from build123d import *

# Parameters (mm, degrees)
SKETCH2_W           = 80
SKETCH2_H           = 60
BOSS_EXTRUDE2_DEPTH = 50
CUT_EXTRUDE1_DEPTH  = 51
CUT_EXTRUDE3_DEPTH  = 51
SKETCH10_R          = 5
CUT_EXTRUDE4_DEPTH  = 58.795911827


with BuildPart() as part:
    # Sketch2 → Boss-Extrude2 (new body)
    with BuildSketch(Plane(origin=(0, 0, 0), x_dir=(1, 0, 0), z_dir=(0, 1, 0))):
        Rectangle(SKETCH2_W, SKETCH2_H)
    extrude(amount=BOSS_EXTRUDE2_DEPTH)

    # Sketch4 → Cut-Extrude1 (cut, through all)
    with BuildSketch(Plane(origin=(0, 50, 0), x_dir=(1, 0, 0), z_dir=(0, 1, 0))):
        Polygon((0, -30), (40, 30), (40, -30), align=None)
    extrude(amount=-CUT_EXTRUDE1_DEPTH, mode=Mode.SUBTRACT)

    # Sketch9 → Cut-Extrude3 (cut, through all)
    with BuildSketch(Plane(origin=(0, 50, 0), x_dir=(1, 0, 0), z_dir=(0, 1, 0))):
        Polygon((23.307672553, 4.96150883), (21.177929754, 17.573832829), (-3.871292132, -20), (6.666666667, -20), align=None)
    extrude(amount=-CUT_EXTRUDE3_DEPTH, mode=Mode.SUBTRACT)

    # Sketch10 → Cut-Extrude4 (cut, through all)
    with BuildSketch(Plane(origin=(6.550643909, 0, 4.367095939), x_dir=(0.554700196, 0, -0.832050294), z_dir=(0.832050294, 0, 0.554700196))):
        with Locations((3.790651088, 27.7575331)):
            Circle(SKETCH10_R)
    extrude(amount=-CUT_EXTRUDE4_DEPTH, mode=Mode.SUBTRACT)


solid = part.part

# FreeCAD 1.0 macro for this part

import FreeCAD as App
import Part
import Sketcher
Q = App.Units.Quantity

doc = App.newDocument("Part")
body = doc.addObject("PartDesign::Body", "Body")

# Sketch on XZ plane
sketch1 = doc.addObject("Sketcher::SketchObject", "Sketch")
body.addObject(sketch1)
sketch1.AttachmentSupport = (doc.XZ_Plane, [""])
sketch1.MapMode = "FlatFace"
sketch1.addGeometry([
    Part.LineSegment(App.Vector(-40, -30, 0), App.Vector(-40, 30, 0)),
    Part.LineSegment(App.Vector(-40, 30, 0), App.Vector(40, 30, 0)),
    Part.LineSegment(App.Vector(40, 30, 0), App.Vector(40, -30, 0)),
    Part.LineSegment(App.Vector(40, -30, 0), App.Vector(-40, -30, 0)),
], False)
sketch1.addConstraint([
    Sketcher.Constraint("Coincident", 0, 2, 1, 1),
    Sketcher.Constraint("Coincident", 1, 2, 2, 1),
    Sketcher.Constraint("Coincident", 2, 2, 3, 1),
    Sketcher.Constraint("Coincident", 3, 2, 0, 1),
    Sketcher.Constraint("Vertical", 0),
    Sketcher.Constraint("Horizontal", 1),
    Sketcher.Constraint("Vertical", 2),
    Sketcher.Constraint("Horizontal", 3),
    Sketcher.Constraint("Symmetric", 0, 2, 2, 2, -1, 1),
    Sketcher.Constraint("DistanceX", 1, 1, 1, 2, Q("80 mm")),
    Sketcher.Constraint("DistanceY", 0, 1, 0, 2, Q("60 mm")),
])
pad1 = doc.addObject("PartDesign::Pad", "Pad")
body.addObject(pad1)
pad1.Profile = sketch1
pad1.Length = 50
pad1.Reversed = True

# Sketch on XZ plane
sketch2 = doc.addObject("Sketcher::SketchObject", "Sketch001")
body.addObject(sketch2)
sketch2.AttachmentSupport = (doc.XZ_Plane, [""])
sketch2.MapMode = "FlatFace"
sketch2.AttachmentOffset = App.Placement(App.Vector(0, 0, -50), App.Rotation())
sketch2.addGeometry([
    Part.LineSegment(App.Vector(40, -30, 0), App.Vector(0, 30, 0)),
    Part.LineSegment(App.Vector(0, 30, 0), App.Vector(40, 30, 0)),
    Part.LineSegment(App.Vector(40, 30, 0), App.Vector(40, -30, 0)),
], False)
sketch2.addConstraint([
    Sketcher.Constraint("Coincident", 0, 2, 1, 1),
    Sketcher.Constraint("Coincident", 1, 2, 2, 1),
    Sketcher.Constraint("Coincident", 2, 2, 0, 1),
    Sketcher.Constraint("Horizontal", 1),
    Sketcher.Constraint("Vertical", 2),
    Sketcher.Constraint("PointOnObject", 0, 2, -2),
    Sketcher.Constraint("DistanceX", 1, 1, 1, 2, Q("40 mm")),
    Sketcher.Constraint("DistanceY", 2, 2, 2, 1, Q("60 mm")),
    Sketcher.Constraint("DistanceY", -1, 1, 0, 2, Q("30 mm")),
])
pocket1 = doc.addObject("PartDesign::Pocket", "Pocket")
body.addObject(pocket1)
pocket1.Profile = sketch2
pocket1.Type = "ThroughAll"
pocket1.Reversed = True

# Sketch on XZ plane
sketch3 = doc.addObject("Sketcher::SketchObject", "Sketch002")
body.addObject(sketch3)
sketch3.AttachmentSupport = (doc.XZ_Plane, [""])
sketch3.MapMode = "FlatFace"
sketch3.AttachmentOffset = App.Placement(App.Vector(0, 0, -50), App.Rotation())
sketch3.addGeometry([
    Part.LineSegment(App.Vector(23, -5, 0), App.Vector(21, -18, 0)),
    Part.LineSegment(App.Vector(21, -18, 0), App.Vector(-4, 20, 0)),
    Part.LineSegment(App.Vector(-4, 20, 0), App.Vector(7, 20, 0)),
    Part.LineSegment(App.Vector(7, 20, 0), App.Vector(23, -5, 0)),
], False)
sketch3.addConstraint([
    Sketcher.Constraint("Coincident", 0, 2, 1, 1),
    Sketcher.Constraint("Coincident", 1, 2, 2, 1),
    Sketcher.Constraint("Coincident", 2, 2, 3, 1),
    Sketcher.Constraint("Coincident", 3, 2, 0, 1),
    Sketcher.Constraint("Horizontal", 2),
    Sketcher.Constraint("Parallel", 1, 3),
    Sketcher.Constraint("Distance", 3, Q("30 mm")),
    Sketcher.Constraint("DistanceY", -1, 1, 1, 2, Q("20 mm")),
    Sketcher.Constraint("DistanceX", 2, 1, 2, 2, Q("10.537959 mm")),
    Sketcher.Constraint("DistanceX", -1, 1, 0, 2, Q("21.17793 mm")),
    Sketcher.Constraint("DistanceY", 3, 2, -1, 1, Q("4.961509 mm")),
    Sketcher.Constraint("DistanceX", 1, 2, 0, 2, Q("25.049222 mm")),
])
pocket2 = doc.addObject("PartDesign::Pocket", "Pocket001")
body.addObject(pocket2)
pocket2.Profile = sketch3
pocket2.Type = "ThroughAll"
pocket2.Reversed = True

# Sketch on an angled plane
sketch4 = doc.addObject("Sketcher::SketchObject", "Sketch003")
body.addObject(sketch4)
sketch4.Placement = App.Placement(App.Vector(6.550644, 0, 4.367096), App.Rotation(App.Vector(0.554700196, 0, -0.832050294), App.Vector(0, 0.999999999, 0), App.Vector(0.832050294, 0, 0.554700196), "ZXY"))
sketch4.addGeometry(Part.Circle(App.Vector(4, 28, 0), App.Vector(0, 0, 1), 5), False)
sketch4.addConstraint([
    Sketcher.Constraint("Diameter", 0, Q("10 mm")),
    Sketcher.Constraint("DistanceX", -1, 1, 0, 3, Q("3.790651 mm")),
    Sketcher.Constraint("DistanceY", -1, 1, 0, 3, Q("27.757533 mm")),
])
pocket3 = doc.addObject("PartDesign::Pocket", "Pocket002")
body.addObject(pocket3)
pocket3.Profile = sketch4
pocket3.Type = "ThroughAll"

doc.recompute()
